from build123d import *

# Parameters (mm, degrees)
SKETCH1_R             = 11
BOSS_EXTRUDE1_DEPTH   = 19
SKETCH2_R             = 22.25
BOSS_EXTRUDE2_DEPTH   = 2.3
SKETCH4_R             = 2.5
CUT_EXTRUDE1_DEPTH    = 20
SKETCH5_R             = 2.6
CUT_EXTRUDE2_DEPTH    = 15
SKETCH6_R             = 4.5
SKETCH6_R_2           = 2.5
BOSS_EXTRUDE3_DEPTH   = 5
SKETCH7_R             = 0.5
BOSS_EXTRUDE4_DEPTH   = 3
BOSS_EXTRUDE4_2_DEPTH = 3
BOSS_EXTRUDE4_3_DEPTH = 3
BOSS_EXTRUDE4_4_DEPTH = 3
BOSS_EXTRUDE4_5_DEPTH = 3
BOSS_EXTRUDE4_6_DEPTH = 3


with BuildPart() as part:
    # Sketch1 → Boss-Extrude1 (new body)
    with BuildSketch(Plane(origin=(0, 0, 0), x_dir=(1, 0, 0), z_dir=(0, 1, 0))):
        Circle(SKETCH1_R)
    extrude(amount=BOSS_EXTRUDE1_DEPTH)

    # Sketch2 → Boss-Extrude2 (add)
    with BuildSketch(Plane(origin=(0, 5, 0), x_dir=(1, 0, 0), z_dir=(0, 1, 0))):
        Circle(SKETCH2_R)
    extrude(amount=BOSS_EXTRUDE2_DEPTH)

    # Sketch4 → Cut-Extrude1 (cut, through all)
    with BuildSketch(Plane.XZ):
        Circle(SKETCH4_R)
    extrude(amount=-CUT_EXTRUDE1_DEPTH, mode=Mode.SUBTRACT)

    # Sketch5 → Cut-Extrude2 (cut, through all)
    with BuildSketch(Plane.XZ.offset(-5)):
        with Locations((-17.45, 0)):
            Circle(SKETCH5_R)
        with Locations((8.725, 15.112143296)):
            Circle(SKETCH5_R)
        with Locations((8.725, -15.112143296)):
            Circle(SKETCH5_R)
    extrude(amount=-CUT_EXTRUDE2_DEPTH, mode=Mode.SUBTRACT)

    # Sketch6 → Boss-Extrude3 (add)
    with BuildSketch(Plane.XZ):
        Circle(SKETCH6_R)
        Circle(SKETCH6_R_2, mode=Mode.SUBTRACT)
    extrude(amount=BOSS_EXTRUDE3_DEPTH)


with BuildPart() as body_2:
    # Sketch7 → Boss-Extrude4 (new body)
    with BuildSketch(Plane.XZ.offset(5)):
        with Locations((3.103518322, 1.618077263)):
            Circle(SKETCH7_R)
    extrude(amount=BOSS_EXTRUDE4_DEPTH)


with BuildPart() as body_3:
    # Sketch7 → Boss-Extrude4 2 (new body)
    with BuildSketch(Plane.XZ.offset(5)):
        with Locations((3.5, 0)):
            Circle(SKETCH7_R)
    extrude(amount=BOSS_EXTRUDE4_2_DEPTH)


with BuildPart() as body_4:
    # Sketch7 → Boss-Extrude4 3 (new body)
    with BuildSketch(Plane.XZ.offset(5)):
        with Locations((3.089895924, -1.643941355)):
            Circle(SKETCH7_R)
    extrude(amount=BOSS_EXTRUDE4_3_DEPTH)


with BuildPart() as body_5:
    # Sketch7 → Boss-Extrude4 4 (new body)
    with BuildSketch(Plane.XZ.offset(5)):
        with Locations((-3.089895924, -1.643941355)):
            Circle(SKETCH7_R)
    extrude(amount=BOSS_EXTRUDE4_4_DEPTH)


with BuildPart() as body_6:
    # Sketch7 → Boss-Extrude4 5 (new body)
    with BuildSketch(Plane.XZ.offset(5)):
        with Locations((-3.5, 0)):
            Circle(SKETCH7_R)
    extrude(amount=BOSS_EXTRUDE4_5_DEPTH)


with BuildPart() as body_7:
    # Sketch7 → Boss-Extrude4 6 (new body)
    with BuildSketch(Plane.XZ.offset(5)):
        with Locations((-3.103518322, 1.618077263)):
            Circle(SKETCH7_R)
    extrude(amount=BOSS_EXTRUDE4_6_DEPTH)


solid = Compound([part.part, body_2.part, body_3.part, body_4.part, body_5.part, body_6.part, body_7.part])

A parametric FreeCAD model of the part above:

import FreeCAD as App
import Part
import Sketcher

V = App.Vector

doc = App.newDocument("Part")
body = doc.addObject("PartDesign::Body", "Body")

# Sketch on XZ plane
sketch1 = body.newObject("Sketcher::SketchObject", "Sketch")
sketch1.AttachmentSupport = (doc.getObject("XZ_Plane"), [""])
sketch1.MapMode = "FlatFace"
sketch1.addGeometry(Part.Circle(V(0, 0, 0), V(0, 0, 1), 11), False)
sketch1.addConstraint([
    Sketcher.Constraint("Coincident", 0, 3, -1, 1),
    Sketcher.Constraint("Diameter", 0, 22.0),
])
pad1 = body.newObject("PartDesign::Pad", "Pad")
pad1.Profile = sketch1
pad1.Length = 19
pad1.Reversed = True

# Sketch on XZ plane
sketch2 = body.newObject("Sketcher::SketchObject", "Sketch001")
sketch2.AttachmentSupport = (doc.getObject("XZ_Plane"), [""])
sketch2.MapMode = "FlatFace"
sketch2.AttachmentOffset = App.Placement(V(0, 0, -5), App.Rotation())
sketch2.addGeometry(Part.Circle(V(0, 0, 0), V(0, 0, 1), 22), False)
sketch2.addConstraint([
    Sketcher.Constraint("Coincident", 0, 3, -1, 1),
    Sketcher.Constraint("Diameter", 0, 44.5),
])
pad2 = body.newObject("PartDesign::Pad", "Pad001")
pad2.Profile = sketch2
pad2.Length = 2.3
pad2.Reversed = True

# Sketch on XZ plane
sketch3 = body.newObject("Sketcher::SketchObject", "Sketch002")
sketch3.AttachmentSupport = (doc.getObject("XZ_Plane"), [""])
sketch3.MapMode = "FlatFace"
sketch3.addGeometry(Part.Circle(V(0, 0, 0), V(0, 0, 1), 2.5), False)
sketch3.addConstraint([
    Sketcher.Constraint("Coincident", 0, 3, -1, 1),
    Sketcher.Constraint("Diameter", 0, 5.0),
])
pocket1 = body.newObject("PartDesign::Pocket", "Pocket")
pocket1.Profile = sketch3
pocket1.Type = "ThroughAll"

# Sketch on XZ plane
sketch4 = body.newObject("Sketcher::SketchObject", "Sketch003")
sketch4.AttachmentSupport = (doc.getObject("XZ_Plane"), [""])
sketch4.MapMode = "FlatFace"
sketch4.AttachmentOffset = App.Placement(V(0, 0, -5), App.Rotation())
sketch4.addGeometry([
    Part.Circle(V(-17.4, 0, 0), V(0, 0, 1), 2.6),
    Part.Circle(V(8.7, 15.1, 0), V(0, 0, 1), 2.6),
    Part.Circle(V(8.7, -15.1, 0), V(0, 0, 1), 2.6),
], False)
sketch4.addConstraint([
    Sketcher.Constraint("Equal", 0, 1),
    Sketcher.Constraint("Equal", 1, 2),
    Sketcher.Constraint("Symmetric", 1, 3, 2, 3, -1),
    Sketcher.Constraint("PointOnObject", 0, 3, -1),
    Sketcher.Constraint("Diameter", 0, 5.2),
    Sketcher.Constraint("DistanceX", 0, 3, -1, 1, 17.45),
    Sketcher.Constraint("DistanceX", -1, 1, 1, 3, 8.725),
    Sketcher.Constraint("DistanceY", -1, 1, 1, 3, 15.112143),
])
pocket2 = body.newObject("PartDesign::Pocket", "Pocket001")
pocket2.Profile = sketch4
pocket2.Type = "ThroughAll"

# Sketch on XZ plane
sketch5 = body.newObject("Sketcher::SketchObject", "Sketch004")
sketch5.AttachmentSupport = (doc.getObject("XZ_Plane"), [""])
sketch5.MapMode = "FlatFace"
sketch5.addGeometry([
    Part.Circle(V(0, 0, 0), V(0, 0, 1), 4.5),
    Part.Circle(V(0, 0, 0), V(0, 0, 1), 2.5),
], False)
sketch5.addConstraint([
    Sketcher.Constraint("Coincident", 0, 3, -1, 1),
    Sketcher.Constraint("Coincident", 1, 3, -1, 1),
    Sketcher.Constraint("Diameter", 0, 9.0),
    Sketcher.Constraint("Diameter", 1, 5.0),
])
pad3 = body.newObject("PartDesign::Pad", "Pad002")
pad3.Profile = sketch5
pad3.Length = 5
body2 = doc.addObject("PartDesign::Body", "Body001")

# Sketch on XZ plane
sketch6 = body2.newObject("Sketcher::SketchObject", "Sketch005")
sketch6.AttachmentSupport = (doc.getObject("XZ_Plane001"), [""])
sketch6.MapMode = "FlatFace"
sketch6.AttachmentOffset = App.Placement(V(0, 0, 5), App.Rotation())
sketch6.addGeometry(Part.Circle(V(3.1, 1.6, 0), V(0, 0, 1), 0.5), False)
sketch6.addConstraint([
    Sketcher.Constraint("Diameter", 0, 1.0),
    Sketcher.Constraint("DistanceX", -1, 1, 0, 3, 3.103518),
    Sketcher.Constraint("DistanceY", -1, 1, 0, 3, 1.618077),
])
pad4 = body2.newObject("PartDesign::Pad", "Pad003")
pad4.Profile = sketch6
pad4.Length = 3
body3 = doc.addObject("PartDesign::Body", "Body002")

# Sketch on XZ plane
sketch7 = body3.newObject("Sketcher::SketchObject", "Sketch006")
sketch7.AttachmentSupport = (doc.getObject("XZ_Plane002"), [""])
sketch7.MapMode = "FlatFace"
sketch7.AttachmentOffset = App.Placement(V(0, 0, 5), App.Rotation())
sketch7.addGeometry(Part.Circle(V(3.5, 0, 0), V(0, 0, 1), 0.5), False)
sketch7.addConstraint([
    Sketcher.Constraint("PointOnObject", 0, 3, -1),
    Sketcher.Constraint("Diameter", 0, 1.0),
    Sketcher.Constraint("DistanceX", -1, 1, 0, 3, 3.5),
])
pad5 = body3.newObject("PartDesign::Pad", "Pad004")
pad5.Profile = sketch7
pad5.Length = 3
body4 = doc.addObject("PartDesign::Body", "Body003")

# Sketch on XZ plane
sketch8 = body4.newObject("Sketcher::SketchObject", "Sketch007")
sketch8.AttachmentSupport = (doc.getObject("XZ_Plane003"), [""])
sketch8.MapMode = "FlatFace"
sketch8.AttachmentOffset = App.Placement(V(0, 0, 5), App.Rotation())
sketch8.addGeometry(Part.Circle(V(3.1, -1.6, 0), V(0, 0, 1), 0.5), False)
sketch8.addConstraint([
    Sketcher.Constraint("Diameter", 0, 1.0),
    Sketcher.Constraint("DistanceY", 0, 3, -1, 1, 1.643941),
    Sketcher.Constraint("DistanceX", -1, 1, 0, 3, 3.089896),
])
pad6 = body4.newObject("PartDesign::Pad", "Pad005")
pad6.Profile = sketch8
pad6.Length = 3
body5 = doc.addObject("PartDesign::Body", "Body004")

# Sketch on XZ plane
sketch9 = body5.newObject("Sketcher::SketchObject", "Sketch008")
sketch9.AttachmentSupport = (doc.getObject("XZ_Plane004"), [""])
sketch9.MapMode = "FlatFace"
sketch9.AttachmentOffset = App.Placement(V(0, 0, 5), App.Rotation())
sketch9.addGeometry(Part.Circle(V(-3.1, -1.6, 0), V(0, 0, 1), 0.5), False)
sketch9.addConstraint([
    Sketcher.Constraint("Diameter", 0, 1.0),
    Sketcher.Constraint("DistanceY", 0, 3, -1, 1, 1.643941),
    Sketcher.Constraint("DistanceX", 0, 3, -1, 1, 3.089896),
])
pad7 = body5.newObject("PartDesign::Pad", "Pad006")
pad7.Profile = sketch9
pad7.Length = 3
body6 = doc.addObject("PartDesign::Body", "Body005")

# Sketch on XZ plane
sketch10 = body6.newObject("Sketcher::SketchObject", "Sketch009")
sketch10.AttachmentSupport = (doc.getObject("XZ_Plane005"), [""])
sketch10.MapMode = "FlatFace"
sketch10.AttachmentOffset = App.Placement(V(0, 0, 5), App.Rotation())
sketch10.addGeometry(Part.Circle(V(-3.5, 0, 0), V(0, 0, 1), 0.5), False)
sketch10.addConstraint([
    Sketcher.Constraint("PointOnObject", 0, 3, -1),
    Sketcher.Constraint("Diameter", 0, 1.0),
    Sketcher.Constraint("DistanceX", 0, 3, -1, 1, 3.5),
])
pad8 = body6.newObject("PartDesign::Pad", "Pad007")
pad8.Profile = sketch10
pad8.Length = 3
body7 = doc.addObject("PartDesign::Body", "Body006")

# Sketch on XZ plane
sketch11 = body7.newObject("Sketcher::SketchObject", "Sketch010")
sketch11.AttachmentSupport = (doc.getObject("XZ_Plane006"), [""])
sketch11.MapMode = "FlatFace"
sketch11.AttachmentOffset = App.Placement(V(0, 0, 5), App.Rotation())
sketch11.addGeometry(Part.Circle(V(-3.1, 1.6, 0), V(0, 0, 1), 0.5), False)
sketch11.addConstraint([
    Sketcher.Constraint("Diameter", 0, 1.0),
    Sketcher.Constraint("DistanceX", 0, 3, -1, 1, 3.103518),
    Sketcher.Constraint("DistanceY", -1, 1, 0, 3, 1.618077),
])
pad9 = body7.newObject("PartDesign::Pad", "Pad008")
pad9.Profile = sketch11
pad9.Length = 3

doc.recompute()
